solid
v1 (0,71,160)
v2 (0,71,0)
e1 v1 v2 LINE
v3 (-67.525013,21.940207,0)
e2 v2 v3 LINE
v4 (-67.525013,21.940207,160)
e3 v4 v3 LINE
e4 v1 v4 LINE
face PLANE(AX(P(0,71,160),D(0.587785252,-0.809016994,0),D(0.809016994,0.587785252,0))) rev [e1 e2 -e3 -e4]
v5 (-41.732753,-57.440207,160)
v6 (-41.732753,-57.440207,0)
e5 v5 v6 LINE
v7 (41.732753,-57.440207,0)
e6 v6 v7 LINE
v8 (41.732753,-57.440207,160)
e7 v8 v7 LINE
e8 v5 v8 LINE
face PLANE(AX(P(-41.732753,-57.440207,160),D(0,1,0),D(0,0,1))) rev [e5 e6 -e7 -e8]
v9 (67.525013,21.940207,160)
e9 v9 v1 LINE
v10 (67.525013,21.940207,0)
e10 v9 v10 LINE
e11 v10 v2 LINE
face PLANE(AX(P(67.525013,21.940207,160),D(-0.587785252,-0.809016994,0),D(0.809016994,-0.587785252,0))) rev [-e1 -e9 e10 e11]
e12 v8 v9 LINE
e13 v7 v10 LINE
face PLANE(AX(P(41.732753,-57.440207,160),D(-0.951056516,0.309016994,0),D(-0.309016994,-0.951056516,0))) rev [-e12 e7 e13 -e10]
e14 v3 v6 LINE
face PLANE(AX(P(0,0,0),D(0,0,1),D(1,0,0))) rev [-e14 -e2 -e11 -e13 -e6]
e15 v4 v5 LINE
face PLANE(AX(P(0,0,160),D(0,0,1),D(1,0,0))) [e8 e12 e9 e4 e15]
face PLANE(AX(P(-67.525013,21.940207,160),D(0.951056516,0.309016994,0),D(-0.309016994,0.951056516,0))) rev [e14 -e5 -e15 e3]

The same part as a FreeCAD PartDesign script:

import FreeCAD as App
import Part
import Sketcher
Q = App.Units.Quantity


def add_polygon(sketch, points):
    """Adds a closed chain of lines whose ends are joined by coincident constraints."""
    first, n = sketch.GeometryCount, len(points)
    for a, b in zip(points, points[1:] + points[:1]):
        sketch.addGeometry(Part.LineSegment(App.Vector(*a, 0), App.Vector(*b, 0)), False)
    for i in range(n):
        sketch.addConstraint(Sketcher.Constraint("Coincident", first + i, 2, first + (i + 1) % n, 1))

doc = App.newDocument("Part")
body = doc.addObject("PartDesign::Body", "Body")

sketch1 = body.newObject("Sketcher::SketchObject", "Sketch")
sketch1.AttachmentSupport = (doc.getObject("XY_Plane"), [""])
sketch1.MapMode = "FlatFace"
add_polygon(sketch1, [(41.732753, -57.440207), (67.525013, 21.940207), (0, 71), (-67.525013, 21.940207), (-41.732753, -57.440207)])
sketch1.addConstraint([
    Sketcher.Constraint("Horizontal", 4),
    Sketcher.Constraint("Symmetric", 0, 2, 2, 2, -2),
    Sketcher.Constraint("PointOnObject", 1, 2, -2),
    Sketcher.Constraint("Equal", 0, 1),
    Sketcher.Constraint("Equal", 2, 3),
    Sketcher.Constraint("Angle", 0, Q("72 deg")),
    Sketcher.Constraint("Angle", 1, Q("144 deg")),
    Sketcher.Constraint("DistanceY", -1, 1, 1, 2, 71.0),
    Sketcher.Constraint("DistanceX", 4, 1, 4, 2, 83.465506),
])
pad1 = body.newObject("PartDesign::Pad", "Pad")
pad1.Profile = sketch1
pad1.Length = 160

doc.recompute()
